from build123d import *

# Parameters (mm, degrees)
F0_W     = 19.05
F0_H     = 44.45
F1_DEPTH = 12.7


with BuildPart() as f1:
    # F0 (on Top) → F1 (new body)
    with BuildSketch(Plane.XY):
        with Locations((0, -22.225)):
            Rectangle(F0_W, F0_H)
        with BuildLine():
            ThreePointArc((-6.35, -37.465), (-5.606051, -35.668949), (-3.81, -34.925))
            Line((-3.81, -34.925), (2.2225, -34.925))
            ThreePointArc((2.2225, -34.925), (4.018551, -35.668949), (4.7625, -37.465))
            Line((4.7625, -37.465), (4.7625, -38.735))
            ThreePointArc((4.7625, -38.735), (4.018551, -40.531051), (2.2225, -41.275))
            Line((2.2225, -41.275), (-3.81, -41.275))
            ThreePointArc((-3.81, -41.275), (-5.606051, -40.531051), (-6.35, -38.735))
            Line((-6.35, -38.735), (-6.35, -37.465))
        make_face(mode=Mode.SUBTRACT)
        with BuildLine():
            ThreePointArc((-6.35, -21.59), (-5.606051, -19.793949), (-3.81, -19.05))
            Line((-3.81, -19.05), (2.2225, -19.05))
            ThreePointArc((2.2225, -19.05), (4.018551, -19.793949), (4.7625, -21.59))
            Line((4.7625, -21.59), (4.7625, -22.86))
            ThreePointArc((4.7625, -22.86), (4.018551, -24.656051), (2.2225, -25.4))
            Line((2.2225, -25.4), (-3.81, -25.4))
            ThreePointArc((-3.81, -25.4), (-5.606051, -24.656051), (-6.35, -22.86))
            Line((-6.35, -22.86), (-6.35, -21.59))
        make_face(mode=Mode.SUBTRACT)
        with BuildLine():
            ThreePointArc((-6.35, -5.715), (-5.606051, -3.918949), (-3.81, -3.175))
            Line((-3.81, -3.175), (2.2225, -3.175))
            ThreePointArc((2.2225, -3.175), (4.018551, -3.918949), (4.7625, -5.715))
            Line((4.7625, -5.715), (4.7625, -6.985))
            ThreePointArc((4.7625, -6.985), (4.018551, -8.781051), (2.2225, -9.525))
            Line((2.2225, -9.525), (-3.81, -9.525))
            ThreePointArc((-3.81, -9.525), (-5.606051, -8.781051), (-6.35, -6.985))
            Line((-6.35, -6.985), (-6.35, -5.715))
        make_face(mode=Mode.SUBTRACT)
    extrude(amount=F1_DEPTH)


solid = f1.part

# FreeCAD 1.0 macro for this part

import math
import FreeCAD as App
import Part
import Sketcher

V = App.Vector
Q = App.Units.Quantity


def add_polygon(sketch, points):
    """Adds a closed chain of lines whose ends are joined by coincident constraints."""
    first, n = sketch.GeometryCount, len(points)
    for a, b in zip(points, points[1:] + points[:1]):
        sketch.addGeometry(Part.LineSegment(App.Vector(*a, 0), App.Vector(*b, 0)), False)
    for i in range(n):
        sketch.addConstraint(Sketcher.Constraint("Coincident", first + i, 2, first + (i + 1) % n, 1))

doc = App.newDocument("Part")
body = doc.addObject("PartDesign::Body", "Body")

# Sketch on XY plane
sketch1 = body.newObject("Sketcher::SketchObject", "Sketch")
sketch1.AttachmentSupport = (doc.getObject("XY_Plane"), [""])
sketch1.MapMode = "FlatFace"
add_polygon(sketch1, [(-9.5, 0), (-9.5, -44.5), (9.5, -44.5), (9.5, 0)])  # lines 0-3
sketch1.addGeometry(Part.LineSegment(V(-6.3, -38.7, 0), V(-6.3, -37.5, 0)), False)  # 4
sketch1.addGeometry(Part.ArcOfCircle(Part.Circle(V(-3.8, -37.5, 0), V(0, 0, 1), 2.5), math.radians(90), math.radians(180)), False)  # 5
sketch1.addGeometry(Part.LineSegment(V(-3.8, -34.9, 0), V(2.2, -34.9, 0)), False)  # 6
sketch1.addGeometry(Part.ArcOfCircle(Part.Circle(V(2.2, -37.5, 0), V(0, 0, 1), 2.5), math.radians(0), math.radians(90)), False)  # 7
sketch1.addGeometry(Part.LineSegment(V(4.8, -37.5, 0), V(4.8, -38.7, 0)), False)  # 8
sketch1.addGeometry(Part.ArcOfCircle(Part.Circle(V(2.2, -38.7, 0), V(0, 0, 1), 2.5), math.radians(-90), math.radians(0)), False)  # 9
sketch1.addGeometry(Part.LineSegment(V(2.2, -41.3, 0), V(-3.8, -41.3, 0)), False)  # 10
sketch1.addGeometry(Part.ArcOfCircle(Part.Circle(V(-3.8, -38.7, 0), V(0, 0, 1), 2.5), math.radians(-180), math.radians(-90)), False)  # 11
sketch1.addGeometry(Part.LineSegment(V(-6.3, -22.9, 0), V(-6.3, -21.6, 0)), False)  # 12
sketch1.addGeometry(Part.ArcOfCircle(Part.Circle(V(-3.8, -21.6, 0), V(0, 0, 1), 2.5), math.radians(90), math.radians(180)), False)  # 13
sketch1.addGeometry(Part.LineSegment(V(-3.8, -19.1, 0), V(2.2, -19.1, 0)), False)  # 14
sketch1.addGeometry(Part.ArcOfCircle(Part.Circle(V(2.2, -21.6, 0), V(0, 0, 1), 2.5), math.radians(0), math.radians(90)), False)  # 15
sketch1.addGeometry(Part.LineSegment(V(4.8, -21.6, 0), V(4.8, -22.9, 0)), False)  # 16
sketch1.addGeometry(Part.ArcOfCircle(Part.Circle(V(2.2, -22.9, 0), V(0, 0, 1), 2.5), math.radians(-90), math.radians(0)), False)  # 17
sketch1.addGeometry(Part.LineSegment(V(2.2, -25.4, 0), V(-3.8, -25.4, 0)), False)  # 18
sketch1.addGeometry(Part.ArcOfCircle(Part.Circle(V(-3.8, -22.9, 0), V(0, 0, 1), 2.5), math.radians(-180), math.radians(-90)), False)  # 19
sketch1.addGeometry(Part.LineSegment(V(-6.3, -7, 0), V(-6.3, -5.7, 0)), False)  # 20
sketch1.addGeometry(Part.ArcOfCircle(Part.Circle(V(-3.8, -5.7, 0), V(0, 0, 1), 2.5), math.radians(90), math.radians(180)), False)  # 21
sketch1.addGeometry(Part.LineSegment(V(-3.8, -3.2, 0), V(2.2, -3.2, 0)), False)  # 22
sketch1.addGeometry(Part.ArcOfCircle(Part.Circle(V(2.2, -5.7, 0), V(0, 0, 1), 2.5), math.radians(0), math.radians(90)), False)  # 23
sketch1.addGeometry(Part.LineSegment(V(4.8, -5.7, 0), V(4.8, -7, 0)), False)  # 24
sketch1.addGeometry(Part.ArcOfCircle(Part.Circle(V(2.2, -7, 0), V(0, 0, 1), 2.5), math.radians(-90), math.radians(0)), False)  # 25
sketch1.addGeometry(Part.LineSegment(V(2.2, -9.5, 0), V(-3.8, -9.5, 0)), False)  # 26
sketch1.addGeometry(Part.ArcOfCircle(Part.Circle(V(-3.8, -7, 0), V(0, 0, 1), 2.5), math.radians(-180), math.radians(-90)), False)  # 27
sketch1.addConstraint([
    Sketcher.Constraint("Tangent", 4, 2, 5, 2),
    Sketcher.Constraint("Tangent", 5, 1, 6, 1),
    Sketcher.Constraint("Tangent", 6, 2, 7, 2),
    Sketcher.Constraint("Tangent", 7, 1, 8, 1),
    Sketcher.Constraint("Tangent", 8, 2, 9, 2),
    Sketcher.Constraint("Tangent", 9, 1, 10, 1),
    Sketcher.Constraint("Tangent", 10, 2, 11, 2),
    Sketcher.Constraint("Tangent", 11, 1, 4, 1),
    Sketcher.Constraint("Tangent", 12, 2, 13, 2),
    Sketcher.Constraint("Tangent", 13, 1, 14, 1),
    Sketcher.Constraint("Tangent", 14, 2, 15, 2),
    Sketcher.Constraint("Tangent", 15, 1, 16, 1),
    Sketcher.Constraint("Tangent", 16, 2, 17, 2),
    Sketcher.Constraint("Tangent", 17, 1, 18, 1),
    Sketcher.Constraint("Tangent", 18, 2, 19, 2),
    Sketcher.Constraint("Tangent", 19, 1, 12, 1),
    Sketcher.Constraint("Tangent", 20, 2, 21, 2),
    Sketcher.Constraint("Tangent", 21, 1, 22, 1),
    Sketcher.Constraint("Tangent", 22, 2, 23, 2),
    Sketcher.Constraint("Tangent", 23, 1, 24, 1),
    Sketcher.Constraint("Tangent", 24, 2, 25, 2),
    Sketcher.Constraint("Tangent", 25, 1, 26, 1),
    Sketcher.Constraint("Tangent", 26, 2, 27, 2),
    Sketcher.Constraint("Tangent", 27, 1, 20, 1),
    Sketcher.Constraint("Vertical", 0),
    Sketcher.Constraint("Horizontal", 1),
    Sketcher.Constraint("Vertical", 2),
    Sketcher.Constraint("Horizontal", 3),
    Sketcher.Constraint("Vertical", 4),
    Sketcher.Constraint("Horizontal", 6),
    Sketcher.Constraint("Vertical", 8),
    Sketcher.Constraint("Horizontal", 10),
    Sketcher.Constraint("Vertical", 12),
    Sketcher.Constraint("Horizontal", 14),
    Sketcher.Constraint("Vertical", 16),
    Sketcher.Constraint("Horizontal", 18),
    Sketcher.Constraint("Vertical", 20),
    Sketcher.Constraint("Horizontal", 22),
    Sketcher.Constraint("Vertical", 24),
    Sketcher.Constraint("Horizontal", 26),
    Sketcher.Constraint("Equal", 5, 7),
    Sketcher.Constraint("Equal", 7, 9),
    Sketcher.Constraint("Equal", 9, 11),
    Sketcher.Constraint("Equal", 11, 13),
    Sketcher.Constraint("Equal", 13, 15),
    Sketcher.Constraint("Equal", 15, 17),
    Sketcher.Constraint("Equal", 17, 19),
    Sketcher.Constraint("Equal", 19, 21),
    Sketcher.Constraint("Equal", 21, 23),
    Sketcher.Constraint("Equal", 23, 25),
    Sketcher.Constraint("Equal", 25, 27),
    Sketcher.Constraint("Symmetric", 2, 2, 3, 2, -1, 1),
    Sketcher.Constraint("Vertical", 11, 3, 13, 3),
    Sketcher.Constraint("Vertical", 9, 3, 15, 3),
    Sketcher.Constraint("Vertical", 19, 3, 21, 3),
    Sketcher.Constraint("Vertical", 17, 3, 23, 3),
    Sketcher.Constraint("Equal", 8, 12),
    Sketcher.Constraint("Equal", 16, 20),
    Sketcher.Constraint("Radius", 5, Q("0.1 in")),
    Sketcher.Constraint("DistanceY", 17, 1, -1, 1, Q("1 in")),
    Sketcher.Constraint("DistanceX", 1, 1, 1, 2, Q("0.75 in")),
    Sketcher.Constraint("DistanceY", 0, 2, 0, 1, Q("1.75 in")),
    Sketcher.Constraint("DistanceY", 4, 1, 4, 2, Q("0.05 in")),
    Sketcher.Constraint("DistanceX", 5, 3, -1, 1, Q("0.15 in")),
    Sketcher.Constraint("DistanceY", 5, 3, 21, 3, Q("1.25 in")),
    Sketcher.Constraint("DistanceX", 6, 1, 6, 2, Q("0.2375 in")),
    Sketcher.Constraint("DistanceY", 5, 3, -1, 1, Q("1.475 in")),
])
pad1 = body.newObject("PartDesign::Pad", "Pad")
pad1.Profile = sketch1
pad1.Length = Q("0.5 in")

doc.recompute()
